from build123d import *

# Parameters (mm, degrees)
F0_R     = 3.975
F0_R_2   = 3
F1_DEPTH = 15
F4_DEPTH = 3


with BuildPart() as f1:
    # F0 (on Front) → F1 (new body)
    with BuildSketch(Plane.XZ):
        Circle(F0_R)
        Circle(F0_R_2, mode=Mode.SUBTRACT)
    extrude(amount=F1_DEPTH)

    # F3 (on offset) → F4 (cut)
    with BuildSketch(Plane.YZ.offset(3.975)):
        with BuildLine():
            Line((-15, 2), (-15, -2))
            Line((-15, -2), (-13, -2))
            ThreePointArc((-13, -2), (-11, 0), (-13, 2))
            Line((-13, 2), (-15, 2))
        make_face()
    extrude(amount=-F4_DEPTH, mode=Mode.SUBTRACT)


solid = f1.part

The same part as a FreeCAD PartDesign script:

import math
import FreeCAD as App
import Part
import Sketcher
from FreeCAD import Vector

doc = App.newDocument("Part")
params = doc.addObject("Spreadsheet::Sheet", "Params")
for row, (alias, value) in enumerate([
    ("sketch1_diameter", "6 mm"),
    ("sketch1_diameter2", "7.95 mm"),
    ("pad1_length", "15 mm"),
    ("sketch2_radius", "2 mm"),
    ("sketch2_width", "2 mm"),
    ("pocket1_length", "3 mm"),
], start=1):
    params.set(f"A{row}", alias)
    params.set(f"B{row}", "=" + value)
    params.setAlias(f"B{row}", alias)

body = doc.addObject("PartDesign::Body", "Body")

# Sketch on XZ plane
sketch1 = body.newObject("Sketcher::SketchObject", "Sketch")
sketch1.AttachmentSupport = (doc.getObject("XZ_Plane"), [""])
sketch1.MapMode = "FlatFace"
sketch1.addGeometry([
    Part.Circle(Vector(0, 0, 0), Vector(0, 0, 1), 4),
    Part.Circle(Vector(0, 0, 0), Vector(0, 0, 1), 3),
], False)
sketch1.addConstraint([
    Sketcher.Constraint("Coincident", 0, 3, -1, 1),
    Sketcher.Constraint("Coincident", 1, 3, -1, 1),
    Sketcher.Constraint("Diameter", 1, 6.0),
    Sketcher.Constraint("Diameter", 0, 7.95),
])
sketch1.setExpression("Constraints[2]", "Params.sketch1_diameter")
sketch1.setExpression("Constraints[3]", "Params.sketch1_diameter2")
pad1 = body.newObject("PartDesign::Pad", "Pad")
pad1.Profile = sketch1
pad1.setExpression("Length", "Params.pad1_length")

# Sketch on YZ plane
sketch2 = body.newObject("Sketcher::SketchObject", "Sketch001")
sketch2.AttachmentSupport = (doc.getObject("YZ_Plane"), [""])
sketch2.MapMode = "FlatFace"
sketch2.AttachmentOffset = App.Placement(Vector(0, 0, 3.975), App.Rotation())
sketch2.addGeometry([
    Part.LineSegment(Vector(-15, 2, 0), Vector(-15, -2, 0)),
    Part.LineSegment(Vector(-15, -2, 0), Vector(-13, -2, 0)),
    Part.ArcOfCircle(Part.Circle(Vector(-13, 0, 0), Vector(0, 0, 1), 2), math.radians(-90), math.radians(90)),
    Part.LineSegment(Vector(-13, 2, 0), Vector(-15, 2, 0)),
], False)
sketch2.addConstraint([
    Sketcher.Constraint("Coincident", 0, 2, 1, 1),
    Sketcher.Constraint("Tangent", 1, 2, 2, 1),
    Sketcher.Constraint("Tangent", 2, 2, 3, 1),
    Sketcher.Constraint("Coincident", 3, 2, 0, 1),
    Sketcher.Constraint("Vertical", 0),
    Sketcher.Constraint("Horizontal", 1),
    Sketcher.Constraint("Horizontal", 3),
    Sketcher.Constraint("PointOnObject", 2, 3, -1),
    Sketcher.Constraint("Radius", 2, 2.0),
    Sketcher.Constraint("DistanceX", 1, 1, 1, 2, 2.0),
    Sketcher.Constraint("DistanceX", 2, 3, -1, 1, 13.0),
])
sketch2.setExpression("Constraints[8]", "Params.sketch2_radius")
sketch2.setExpression("Constraints[9]", "Params.sketch2_width")
pocket1 = body.newObject("PartDesign::Pocket", "Pocket")
pocket1.Profile = sketch2
pocket1.setExpression("Length", "Params.pocket1_length")

doc.recompute()
